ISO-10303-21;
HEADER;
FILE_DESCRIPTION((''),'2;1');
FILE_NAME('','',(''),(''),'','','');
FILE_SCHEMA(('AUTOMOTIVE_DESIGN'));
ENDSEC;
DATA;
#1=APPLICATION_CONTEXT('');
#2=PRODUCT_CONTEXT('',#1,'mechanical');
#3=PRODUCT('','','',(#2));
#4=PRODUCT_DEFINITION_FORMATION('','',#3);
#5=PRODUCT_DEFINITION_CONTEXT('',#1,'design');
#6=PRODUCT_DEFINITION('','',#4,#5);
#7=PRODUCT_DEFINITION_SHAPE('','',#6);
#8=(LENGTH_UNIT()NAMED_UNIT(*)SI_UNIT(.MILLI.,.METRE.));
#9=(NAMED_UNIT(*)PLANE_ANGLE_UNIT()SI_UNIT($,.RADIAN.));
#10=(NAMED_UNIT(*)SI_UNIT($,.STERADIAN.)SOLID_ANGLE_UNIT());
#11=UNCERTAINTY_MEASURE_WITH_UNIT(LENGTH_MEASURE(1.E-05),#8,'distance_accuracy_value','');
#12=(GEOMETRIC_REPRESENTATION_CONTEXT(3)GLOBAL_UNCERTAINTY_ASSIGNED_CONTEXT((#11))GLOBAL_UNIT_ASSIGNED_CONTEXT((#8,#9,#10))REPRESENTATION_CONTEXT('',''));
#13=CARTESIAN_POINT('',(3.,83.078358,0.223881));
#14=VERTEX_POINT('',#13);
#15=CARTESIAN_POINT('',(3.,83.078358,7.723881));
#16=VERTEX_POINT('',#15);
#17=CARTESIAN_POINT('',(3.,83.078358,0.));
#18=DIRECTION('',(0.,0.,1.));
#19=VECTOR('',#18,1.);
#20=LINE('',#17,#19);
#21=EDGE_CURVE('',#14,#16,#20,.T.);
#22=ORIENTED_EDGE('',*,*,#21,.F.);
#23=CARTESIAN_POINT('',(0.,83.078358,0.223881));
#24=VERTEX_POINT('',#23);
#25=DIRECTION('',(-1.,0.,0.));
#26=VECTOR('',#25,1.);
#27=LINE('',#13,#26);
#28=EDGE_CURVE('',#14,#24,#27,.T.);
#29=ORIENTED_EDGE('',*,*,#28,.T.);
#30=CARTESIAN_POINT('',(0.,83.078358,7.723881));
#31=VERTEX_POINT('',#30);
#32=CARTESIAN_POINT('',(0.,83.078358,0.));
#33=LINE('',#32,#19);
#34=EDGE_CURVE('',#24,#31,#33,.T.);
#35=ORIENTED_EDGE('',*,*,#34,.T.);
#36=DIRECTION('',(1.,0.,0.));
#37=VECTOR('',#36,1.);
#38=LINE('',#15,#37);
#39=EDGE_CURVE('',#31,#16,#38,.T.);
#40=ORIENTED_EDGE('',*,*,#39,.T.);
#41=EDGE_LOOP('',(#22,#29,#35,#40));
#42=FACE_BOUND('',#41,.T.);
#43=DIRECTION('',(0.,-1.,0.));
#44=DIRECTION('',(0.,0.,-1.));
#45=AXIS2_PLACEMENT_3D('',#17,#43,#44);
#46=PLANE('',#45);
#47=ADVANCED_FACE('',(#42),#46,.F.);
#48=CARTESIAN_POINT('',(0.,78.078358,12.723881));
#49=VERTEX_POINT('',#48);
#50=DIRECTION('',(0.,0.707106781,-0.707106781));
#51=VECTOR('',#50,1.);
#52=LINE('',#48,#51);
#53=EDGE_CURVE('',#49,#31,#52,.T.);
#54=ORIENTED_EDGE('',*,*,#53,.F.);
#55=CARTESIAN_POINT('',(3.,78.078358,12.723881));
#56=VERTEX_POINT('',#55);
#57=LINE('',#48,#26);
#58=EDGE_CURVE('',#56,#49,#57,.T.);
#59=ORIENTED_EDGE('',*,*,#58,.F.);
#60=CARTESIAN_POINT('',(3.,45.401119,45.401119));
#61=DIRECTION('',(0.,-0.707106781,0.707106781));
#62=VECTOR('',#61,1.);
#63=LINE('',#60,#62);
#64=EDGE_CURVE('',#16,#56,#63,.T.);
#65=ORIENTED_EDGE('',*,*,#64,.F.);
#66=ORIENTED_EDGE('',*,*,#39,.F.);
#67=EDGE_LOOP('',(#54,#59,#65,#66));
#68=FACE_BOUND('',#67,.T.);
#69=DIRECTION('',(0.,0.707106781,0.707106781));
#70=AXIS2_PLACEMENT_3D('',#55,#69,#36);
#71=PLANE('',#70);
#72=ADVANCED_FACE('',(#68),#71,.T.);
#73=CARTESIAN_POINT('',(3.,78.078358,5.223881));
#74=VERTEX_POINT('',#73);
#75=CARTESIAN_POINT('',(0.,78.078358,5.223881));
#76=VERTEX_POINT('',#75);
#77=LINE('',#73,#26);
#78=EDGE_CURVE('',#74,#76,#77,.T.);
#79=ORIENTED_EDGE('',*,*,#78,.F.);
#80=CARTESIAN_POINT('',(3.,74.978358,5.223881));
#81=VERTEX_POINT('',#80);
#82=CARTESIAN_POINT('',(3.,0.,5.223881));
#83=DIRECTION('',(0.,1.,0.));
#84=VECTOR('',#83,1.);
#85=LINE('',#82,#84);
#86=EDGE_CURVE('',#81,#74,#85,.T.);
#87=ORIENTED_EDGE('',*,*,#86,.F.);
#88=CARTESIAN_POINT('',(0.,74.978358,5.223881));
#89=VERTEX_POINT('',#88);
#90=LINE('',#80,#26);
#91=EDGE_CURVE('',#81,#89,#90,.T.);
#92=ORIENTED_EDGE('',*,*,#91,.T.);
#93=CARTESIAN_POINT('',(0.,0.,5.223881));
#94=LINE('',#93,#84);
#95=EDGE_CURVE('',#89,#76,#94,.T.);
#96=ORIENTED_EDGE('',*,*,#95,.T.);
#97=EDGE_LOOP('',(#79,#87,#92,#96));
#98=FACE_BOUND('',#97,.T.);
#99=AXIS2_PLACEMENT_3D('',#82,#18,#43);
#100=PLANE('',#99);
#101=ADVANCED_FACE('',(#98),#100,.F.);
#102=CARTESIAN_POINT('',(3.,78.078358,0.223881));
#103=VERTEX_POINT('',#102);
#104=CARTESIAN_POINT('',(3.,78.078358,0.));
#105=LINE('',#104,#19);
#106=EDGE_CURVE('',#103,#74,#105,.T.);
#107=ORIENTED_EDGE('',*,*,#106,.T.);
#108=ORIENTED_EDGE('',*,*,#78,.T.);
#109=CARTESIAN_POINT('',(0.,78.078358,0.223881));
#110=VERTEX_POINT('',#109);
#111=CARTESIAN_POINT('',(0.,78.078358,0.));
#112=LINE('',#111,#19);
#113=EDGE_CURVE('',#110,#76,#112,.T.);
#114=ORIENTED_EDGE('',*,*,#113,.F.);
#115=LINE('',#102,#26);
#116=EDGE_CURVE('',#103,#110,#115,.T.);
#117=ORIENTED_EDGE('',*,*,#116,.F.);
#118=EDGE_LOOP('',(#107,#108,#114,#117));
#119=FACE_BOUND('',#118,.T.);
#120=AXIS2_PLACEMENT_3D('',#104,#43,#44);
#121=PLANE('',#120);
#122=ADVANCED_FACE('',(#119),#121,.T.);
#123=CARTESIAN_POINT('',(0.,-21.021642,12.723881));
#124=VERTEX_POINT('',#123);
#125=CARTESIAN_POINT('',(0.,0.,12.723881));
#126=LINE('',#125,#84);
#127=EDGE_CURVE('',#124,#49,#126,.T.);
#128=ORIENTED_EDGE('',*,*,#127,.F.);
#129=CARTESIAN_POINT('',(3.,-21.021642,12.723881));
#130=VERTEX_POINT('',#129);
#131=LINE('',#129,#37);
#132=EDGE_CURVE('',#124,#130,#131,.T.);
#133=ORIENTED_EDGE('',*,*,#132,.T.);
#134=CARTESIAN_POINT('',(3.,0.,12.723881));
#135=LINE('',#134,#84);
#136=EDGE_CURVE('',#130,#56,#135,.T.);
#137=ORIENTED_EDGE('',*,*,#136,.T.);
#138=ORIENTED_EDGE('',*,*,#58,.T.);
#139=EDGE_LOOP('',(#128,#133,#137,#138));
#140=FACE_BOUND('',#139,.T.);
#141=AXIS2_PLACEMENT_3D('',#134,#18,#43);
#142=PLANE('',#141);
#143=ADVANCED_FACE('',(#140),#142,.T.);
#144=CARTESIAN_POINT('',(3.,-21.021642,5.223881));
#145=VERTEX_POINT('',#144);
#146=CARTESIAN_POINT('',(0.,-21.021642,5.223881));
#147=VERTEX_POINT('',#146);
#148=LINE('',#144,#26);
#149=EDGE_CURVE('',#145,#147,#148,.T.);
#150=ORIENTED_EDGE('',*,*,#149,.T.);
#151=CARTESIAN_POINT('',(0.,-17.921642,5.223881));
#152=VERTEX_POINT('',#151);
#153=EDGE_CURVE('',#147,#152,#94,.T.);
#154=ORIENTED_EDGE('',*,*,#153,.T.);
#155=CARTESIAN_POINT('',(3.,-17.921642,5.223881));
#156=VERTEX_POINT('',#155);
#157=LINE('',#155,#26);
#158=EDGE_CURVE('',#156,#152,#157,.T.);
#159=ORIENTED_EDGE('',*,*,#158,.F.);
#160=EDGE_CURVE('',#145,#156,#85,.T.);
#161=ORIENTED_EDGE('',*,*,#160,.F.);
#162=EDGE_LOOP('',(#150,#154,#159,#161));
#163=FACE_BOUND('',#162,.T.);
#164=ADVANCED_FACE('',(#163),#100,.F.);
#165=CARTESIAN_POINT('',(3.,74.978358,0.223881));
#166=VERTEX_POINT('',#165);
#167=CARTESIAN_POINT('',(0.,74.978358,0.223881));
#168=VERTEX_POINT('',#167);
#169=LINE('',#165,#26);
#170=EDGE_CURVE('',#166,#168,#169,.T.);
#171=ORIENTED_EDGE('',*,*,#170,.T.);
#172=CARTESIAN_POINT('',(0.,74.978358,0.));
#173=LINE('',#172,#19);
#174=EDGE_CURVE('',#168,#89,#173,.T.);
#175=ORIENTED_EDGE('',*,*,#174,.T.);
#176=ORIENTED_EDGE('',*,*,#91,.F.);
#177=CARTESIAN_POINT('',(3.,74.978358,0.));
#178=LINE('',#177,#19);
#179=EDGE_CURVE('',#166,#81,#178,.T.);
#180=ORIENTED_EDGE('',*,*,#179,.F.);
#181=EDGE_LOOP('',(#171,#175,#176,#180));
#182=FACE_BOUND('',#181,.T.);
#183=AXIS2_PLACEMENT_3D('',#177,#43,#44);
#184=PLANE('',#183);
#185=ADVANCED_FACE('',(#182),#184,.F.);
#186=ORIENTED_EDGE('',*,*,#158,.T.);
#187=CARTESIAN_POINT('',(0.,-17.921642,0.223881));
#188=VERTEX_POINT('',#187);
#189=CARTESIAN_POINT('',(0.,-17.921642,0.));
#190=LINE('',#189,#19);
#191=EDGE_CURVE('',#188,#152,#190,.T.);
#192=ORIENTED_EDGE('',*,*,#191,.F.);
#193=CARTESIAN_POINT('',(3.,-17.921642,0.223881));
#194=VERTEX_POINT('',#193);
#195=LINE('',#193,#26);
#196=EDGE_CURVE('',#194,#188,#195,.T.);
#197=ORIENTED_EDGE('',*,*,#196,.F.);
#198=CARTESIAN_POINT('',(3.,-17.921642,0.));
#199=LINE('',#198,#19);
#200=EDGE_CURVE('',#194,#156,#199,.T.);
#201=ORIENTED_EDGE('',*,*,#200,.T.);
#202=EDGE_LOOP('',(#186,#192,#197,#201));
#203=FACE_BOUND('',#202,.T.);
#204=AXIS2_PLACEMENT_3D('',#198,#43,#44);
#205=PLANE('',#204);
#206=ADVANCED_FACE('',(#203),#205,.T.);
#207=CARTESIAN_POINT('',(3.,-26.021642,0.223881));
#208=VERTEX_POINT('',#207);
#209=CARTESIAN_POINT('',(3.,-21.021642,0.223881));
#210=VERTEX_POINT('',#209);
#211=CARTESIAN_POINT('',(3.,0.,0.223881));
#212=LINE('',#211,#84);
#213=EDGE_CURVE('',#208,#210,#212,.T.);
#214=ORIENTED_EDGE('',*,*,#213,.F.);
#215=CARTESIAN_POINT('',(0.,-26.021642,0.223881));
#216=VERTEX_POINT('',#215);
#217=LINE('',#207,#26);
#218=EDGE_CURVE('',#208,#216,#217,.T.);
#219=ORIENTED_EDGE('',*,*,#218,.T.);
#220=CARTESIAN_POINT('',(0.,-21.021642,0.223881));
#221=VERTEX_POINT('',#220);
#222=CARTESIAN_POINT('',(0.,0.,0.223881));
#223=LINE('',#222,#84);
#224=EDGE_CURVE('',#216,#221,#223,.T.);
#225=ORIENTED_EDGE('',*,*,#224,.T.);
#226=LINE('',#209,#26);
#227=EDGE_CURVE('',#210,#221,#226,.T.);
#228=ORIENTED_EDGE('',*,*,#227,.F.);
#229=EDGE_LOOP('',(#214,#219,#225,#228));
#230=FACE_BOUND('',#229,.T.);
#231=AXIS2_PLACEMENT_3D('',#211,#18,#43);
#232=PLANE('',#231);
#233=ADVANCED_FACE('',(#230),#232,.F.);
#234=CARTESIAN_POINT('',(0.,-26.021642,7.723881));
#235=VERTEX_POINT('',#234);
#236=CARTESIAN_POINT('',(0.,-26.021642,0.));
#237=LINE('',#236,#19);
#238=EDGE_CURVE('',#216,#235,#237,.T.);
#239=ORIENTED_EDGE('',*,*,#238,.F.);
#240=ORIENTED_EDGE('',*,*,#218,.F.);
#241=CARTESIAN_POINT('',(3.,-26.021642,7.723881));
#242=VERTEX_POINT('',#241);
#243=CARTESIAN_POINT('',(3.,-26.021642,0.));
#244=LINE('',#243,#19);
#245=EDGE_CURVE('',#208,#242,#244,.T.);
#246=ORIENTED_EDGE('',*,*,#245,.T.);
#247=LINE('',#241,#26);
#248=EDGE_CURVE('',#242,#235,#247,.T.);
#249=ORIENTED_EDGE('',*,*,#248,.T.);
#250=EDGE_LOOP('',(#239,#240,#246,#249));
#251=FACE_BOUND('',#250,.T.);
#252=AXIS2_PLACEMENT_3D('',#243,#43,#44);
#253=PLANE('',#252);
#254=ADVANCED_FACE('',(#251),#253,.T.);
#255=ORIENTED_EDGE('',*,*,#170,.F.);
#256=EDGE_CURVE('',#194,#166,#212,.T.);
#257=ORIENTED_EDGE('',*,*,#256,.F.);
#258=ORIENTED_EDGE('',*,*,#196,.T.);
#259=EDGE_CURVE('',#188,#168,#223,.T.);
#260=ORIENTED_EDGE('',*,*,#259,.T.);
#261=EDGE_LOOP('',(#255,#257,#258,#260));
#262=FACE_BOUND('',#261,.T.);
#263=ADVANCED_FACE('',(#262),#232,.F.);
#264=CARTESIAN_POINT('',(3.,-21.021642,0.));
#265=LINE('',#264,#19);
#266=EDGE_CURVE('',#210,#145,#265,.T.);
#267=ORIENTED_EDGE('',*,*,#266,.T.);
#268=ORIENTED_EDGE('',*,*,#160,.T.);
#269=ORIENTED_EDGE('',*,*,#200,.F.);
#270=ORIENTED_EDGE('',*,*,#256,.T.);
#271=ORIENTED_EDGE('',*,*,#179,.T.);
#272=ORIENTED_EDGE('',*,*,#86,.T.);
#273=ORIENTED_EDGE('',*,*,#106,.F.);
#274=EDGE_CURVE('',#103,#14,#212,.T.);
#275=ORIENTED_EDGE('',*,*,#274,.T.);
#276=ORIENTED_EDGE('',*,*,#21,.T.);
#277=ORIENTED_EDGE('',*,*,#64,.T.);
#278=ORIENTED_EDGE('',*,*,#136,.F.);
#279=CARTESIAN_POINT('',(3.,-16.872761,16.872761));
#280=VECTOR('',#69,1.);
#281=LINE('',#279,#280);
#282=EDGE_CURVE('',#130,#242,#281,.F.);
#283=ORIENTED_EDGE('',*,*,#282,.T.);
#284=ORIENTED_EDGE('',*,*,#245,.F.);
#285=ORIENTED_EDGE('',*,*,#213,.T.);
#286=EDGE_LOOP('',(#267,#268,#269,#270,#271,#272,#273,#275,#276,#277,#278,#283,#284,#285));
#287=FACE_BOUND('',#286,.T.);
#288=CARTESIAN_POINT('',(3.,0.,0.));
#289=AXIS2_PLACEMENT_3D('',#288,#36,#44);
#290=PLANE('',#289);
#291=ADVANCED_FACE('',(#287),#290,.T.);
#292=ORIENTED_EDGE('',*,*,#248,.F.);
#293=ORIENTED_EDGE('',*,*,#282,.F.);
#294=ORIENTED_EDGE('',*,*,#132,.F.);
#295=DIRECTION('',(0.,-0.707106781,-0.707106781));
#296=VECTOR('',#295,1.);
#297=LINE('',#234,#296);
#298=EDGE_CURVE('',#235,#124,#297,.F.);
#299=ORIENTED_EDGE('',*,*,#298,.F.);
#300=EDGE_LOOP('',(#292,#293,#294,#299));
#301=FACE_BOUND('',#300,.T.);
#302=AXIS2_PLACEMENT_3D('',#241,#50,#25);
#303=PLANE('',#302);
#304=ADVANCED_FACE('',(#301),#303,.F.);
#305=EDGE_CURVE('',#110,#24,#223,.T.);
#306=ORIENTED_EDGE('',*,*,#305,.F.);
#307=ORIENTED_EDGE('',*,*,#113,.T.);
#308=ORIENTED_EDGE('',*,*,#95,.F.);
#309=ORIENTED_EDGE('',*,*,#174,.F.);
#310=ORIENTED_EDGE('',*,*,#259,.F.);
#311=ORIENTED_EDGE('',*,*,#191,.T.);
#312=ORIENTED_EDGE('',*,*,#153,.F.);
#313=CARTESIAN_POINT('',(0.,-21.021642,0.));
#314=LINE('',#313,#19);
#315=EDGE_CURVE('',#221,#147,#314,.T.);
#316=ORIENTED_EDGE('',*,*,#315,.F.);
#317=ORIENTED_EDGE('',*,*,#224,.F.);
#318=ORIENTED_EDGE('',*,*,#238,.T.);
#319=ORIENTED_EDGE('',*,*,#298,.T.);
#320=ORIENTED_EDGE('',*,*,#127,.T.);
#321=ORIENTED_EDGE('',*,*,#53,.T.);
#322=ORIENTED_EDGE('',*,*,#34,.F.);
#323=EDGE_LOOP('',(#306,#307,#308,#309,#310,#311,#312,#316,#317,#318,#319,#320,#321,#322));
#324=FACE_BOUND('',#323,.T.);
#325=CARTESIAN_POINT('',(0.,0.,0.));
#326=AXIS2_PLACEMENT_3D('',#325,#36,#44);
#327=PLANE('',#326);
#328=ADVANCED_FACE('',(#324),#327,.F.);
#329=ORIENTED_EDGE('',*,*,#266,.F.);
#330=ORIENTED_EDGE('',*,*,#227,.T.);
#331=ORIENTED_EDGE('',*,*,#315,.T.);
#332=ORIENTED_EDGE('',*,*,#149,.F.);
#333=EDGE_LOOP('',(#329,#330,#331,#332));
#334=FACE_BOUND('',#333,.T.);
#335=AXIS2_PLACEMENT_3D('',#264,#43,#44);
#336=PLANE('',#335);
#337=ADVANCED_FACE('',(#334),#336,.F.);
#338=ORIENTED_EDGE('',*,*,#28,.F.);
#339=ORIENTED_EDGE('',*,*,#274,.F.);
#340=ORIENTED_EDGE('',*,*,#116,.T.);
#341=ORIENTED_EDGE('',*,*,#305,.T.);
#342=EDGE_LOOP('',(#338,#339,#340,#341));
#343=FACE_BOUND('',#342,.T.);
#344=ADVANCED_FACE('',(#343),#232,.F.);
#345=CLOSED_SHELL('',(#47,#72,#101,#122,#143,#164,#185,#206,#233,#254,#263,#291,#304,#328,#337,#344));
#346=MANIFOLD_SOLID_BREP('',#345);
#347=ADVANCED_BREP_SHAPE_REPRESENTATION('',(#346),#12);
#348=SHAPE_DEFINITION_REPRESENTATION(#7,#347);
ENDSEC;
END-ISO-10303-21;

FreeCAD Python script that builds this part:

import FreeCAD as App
import Part
import Sketcher
from FreeCAD import Vector


def edges_at(feature, points):
    """Names of the edges that pass closest to the given points."""
    edges = feature.Shape.Edges
    near = lambda p: min(range(len(edges)), key=lambda i: edges[i].distToShape(Part.Vertex(*p))[0])
    return sorted({f"Edge{near(p) + 1}" for p in points})


def add_polygon(sketch, points):
    """Adds a closed chain of lines whose ends are joined by coincident constraints."""
    first, n = sketch.GeometryCount, len(points)
    for a, b in zip(points, points[1:] + points[:1]):
        sketch.addGeometry(Part.LineSegment(App.Vector(*a, 0), App.Vector(*b, 0)), False)
    for i in range(n):
        sketch.addConstraint(Sketcher.Constraint("Coincident", first + i, 2, first + (i + 1) % n, 1))

doc = App.newDocument("Part")
body = doc.addObject("PartDesign::Body", "Body")

sketch1 = body.newObject("Sketcher::SketchObject", "Sketch")
sketch1.AttachmentSupport = (doc.getObject("YZ_Plane"), [""])
sketch1.MapMode = "FlatFace"
add_polygon(sketch1, [(-21, 5.2), (-17.9, 5.2), (-17.9, 0.2), (75, 0.2), (75, 5.2), (78.1, 5.2), (78.1, 0.2), (83.1, 0.2), (83.1, 12.7), (-26, 12.7), (-26, 0.2), (-21, 0.2)])
sketch1.addConstraint(Sketcher.Constraint("Horizontal", 0))
sketch1.addConstraint(Sketcher.Constraint("Vertical", 1))
sketch1.addConstraint(Sketcher.Constraint("Horizontal", 2))
sketch1.addConstraint(Sketcher.Constraint("Vertical", 3))
sketch1.addConstraint(Sketcher.Constraint("Horizontal", 4))
sketch1.addConstraint(Sketcher.Constraint("Vertical", 5))
sketch1.addConstraint(Sketcher.Constraint("Horizontal", 6))
sketch1.addConstraint(Sketcher.Constraint("Vertical", 7))
sketch1.addConstraint(Sketcher.Constraint("Horizontal", 8))
sketch1.addConstraint(Sketcher.Constraint("Vertical", 9))
sketch1.addConstraint(Sketcher.Constraint("Horizontal", 10))
sketch1.addConstraint(Sketcher.Constraint("Vertical", 11))
sketch1.addConstraint(Sketcher.Constraint("Horizontal", 0, 2, 3, 2))
sketch1.addConstraint(Sketcher.Constraint("Horizontal", 2, 2, 5, 2))
sketch1.addConstraint(Sketcher.Constraint("Horizontal", 6, 2, 9, 2))
sketch1.addConstraint(Sketcher.Constraint("Equal", 0, 4))
sketch1.addConstraint(Sketcher.Constraint("Equal", 6, 10))
sketch1.addConstraint(Sketcher.Constraint("Equal", 10, 1))
sketch1.addConstraint(Sketcher.Constraint("DistanceX", 6, 1, 6, 2, 5.0))
sketch1.addConstraint(Sketcher.Constraint("DistanceX", 0, 1, 0, 2, 3.1))
sketch1.addConstraint(Sketcher.Constraint("DistanceX", 2, 1, 2, 2, 92.9))
sketch1.addConstraint(Sketcher.Constraint("DistanceY", 7, 1, 7, 2, 12.5))
sketch1.addConstraint(Sketcher.Constraint("DistanceX", 0, 2, -1, 1, 17.921642))
sketch1.addConstraint(Sketcher.Constraint("DistanceY", -1, 1, 0, 2, 5.223881))
pad1 = body.newObject("PartDesign::Pad", "Pad")
pad1.Profile = sketch1
pad1.Length = 3
doc.recompute()

chamfer = body.newObject("PartDesign::Chamfer", "Chamfer")
chamfer.Base = (pad1, edges_at(pad1, [(1.5, -26.022, 12.724), (1.5, 83.078, 12.724)]))
chamfer.Size = 5

doc.recompute()
